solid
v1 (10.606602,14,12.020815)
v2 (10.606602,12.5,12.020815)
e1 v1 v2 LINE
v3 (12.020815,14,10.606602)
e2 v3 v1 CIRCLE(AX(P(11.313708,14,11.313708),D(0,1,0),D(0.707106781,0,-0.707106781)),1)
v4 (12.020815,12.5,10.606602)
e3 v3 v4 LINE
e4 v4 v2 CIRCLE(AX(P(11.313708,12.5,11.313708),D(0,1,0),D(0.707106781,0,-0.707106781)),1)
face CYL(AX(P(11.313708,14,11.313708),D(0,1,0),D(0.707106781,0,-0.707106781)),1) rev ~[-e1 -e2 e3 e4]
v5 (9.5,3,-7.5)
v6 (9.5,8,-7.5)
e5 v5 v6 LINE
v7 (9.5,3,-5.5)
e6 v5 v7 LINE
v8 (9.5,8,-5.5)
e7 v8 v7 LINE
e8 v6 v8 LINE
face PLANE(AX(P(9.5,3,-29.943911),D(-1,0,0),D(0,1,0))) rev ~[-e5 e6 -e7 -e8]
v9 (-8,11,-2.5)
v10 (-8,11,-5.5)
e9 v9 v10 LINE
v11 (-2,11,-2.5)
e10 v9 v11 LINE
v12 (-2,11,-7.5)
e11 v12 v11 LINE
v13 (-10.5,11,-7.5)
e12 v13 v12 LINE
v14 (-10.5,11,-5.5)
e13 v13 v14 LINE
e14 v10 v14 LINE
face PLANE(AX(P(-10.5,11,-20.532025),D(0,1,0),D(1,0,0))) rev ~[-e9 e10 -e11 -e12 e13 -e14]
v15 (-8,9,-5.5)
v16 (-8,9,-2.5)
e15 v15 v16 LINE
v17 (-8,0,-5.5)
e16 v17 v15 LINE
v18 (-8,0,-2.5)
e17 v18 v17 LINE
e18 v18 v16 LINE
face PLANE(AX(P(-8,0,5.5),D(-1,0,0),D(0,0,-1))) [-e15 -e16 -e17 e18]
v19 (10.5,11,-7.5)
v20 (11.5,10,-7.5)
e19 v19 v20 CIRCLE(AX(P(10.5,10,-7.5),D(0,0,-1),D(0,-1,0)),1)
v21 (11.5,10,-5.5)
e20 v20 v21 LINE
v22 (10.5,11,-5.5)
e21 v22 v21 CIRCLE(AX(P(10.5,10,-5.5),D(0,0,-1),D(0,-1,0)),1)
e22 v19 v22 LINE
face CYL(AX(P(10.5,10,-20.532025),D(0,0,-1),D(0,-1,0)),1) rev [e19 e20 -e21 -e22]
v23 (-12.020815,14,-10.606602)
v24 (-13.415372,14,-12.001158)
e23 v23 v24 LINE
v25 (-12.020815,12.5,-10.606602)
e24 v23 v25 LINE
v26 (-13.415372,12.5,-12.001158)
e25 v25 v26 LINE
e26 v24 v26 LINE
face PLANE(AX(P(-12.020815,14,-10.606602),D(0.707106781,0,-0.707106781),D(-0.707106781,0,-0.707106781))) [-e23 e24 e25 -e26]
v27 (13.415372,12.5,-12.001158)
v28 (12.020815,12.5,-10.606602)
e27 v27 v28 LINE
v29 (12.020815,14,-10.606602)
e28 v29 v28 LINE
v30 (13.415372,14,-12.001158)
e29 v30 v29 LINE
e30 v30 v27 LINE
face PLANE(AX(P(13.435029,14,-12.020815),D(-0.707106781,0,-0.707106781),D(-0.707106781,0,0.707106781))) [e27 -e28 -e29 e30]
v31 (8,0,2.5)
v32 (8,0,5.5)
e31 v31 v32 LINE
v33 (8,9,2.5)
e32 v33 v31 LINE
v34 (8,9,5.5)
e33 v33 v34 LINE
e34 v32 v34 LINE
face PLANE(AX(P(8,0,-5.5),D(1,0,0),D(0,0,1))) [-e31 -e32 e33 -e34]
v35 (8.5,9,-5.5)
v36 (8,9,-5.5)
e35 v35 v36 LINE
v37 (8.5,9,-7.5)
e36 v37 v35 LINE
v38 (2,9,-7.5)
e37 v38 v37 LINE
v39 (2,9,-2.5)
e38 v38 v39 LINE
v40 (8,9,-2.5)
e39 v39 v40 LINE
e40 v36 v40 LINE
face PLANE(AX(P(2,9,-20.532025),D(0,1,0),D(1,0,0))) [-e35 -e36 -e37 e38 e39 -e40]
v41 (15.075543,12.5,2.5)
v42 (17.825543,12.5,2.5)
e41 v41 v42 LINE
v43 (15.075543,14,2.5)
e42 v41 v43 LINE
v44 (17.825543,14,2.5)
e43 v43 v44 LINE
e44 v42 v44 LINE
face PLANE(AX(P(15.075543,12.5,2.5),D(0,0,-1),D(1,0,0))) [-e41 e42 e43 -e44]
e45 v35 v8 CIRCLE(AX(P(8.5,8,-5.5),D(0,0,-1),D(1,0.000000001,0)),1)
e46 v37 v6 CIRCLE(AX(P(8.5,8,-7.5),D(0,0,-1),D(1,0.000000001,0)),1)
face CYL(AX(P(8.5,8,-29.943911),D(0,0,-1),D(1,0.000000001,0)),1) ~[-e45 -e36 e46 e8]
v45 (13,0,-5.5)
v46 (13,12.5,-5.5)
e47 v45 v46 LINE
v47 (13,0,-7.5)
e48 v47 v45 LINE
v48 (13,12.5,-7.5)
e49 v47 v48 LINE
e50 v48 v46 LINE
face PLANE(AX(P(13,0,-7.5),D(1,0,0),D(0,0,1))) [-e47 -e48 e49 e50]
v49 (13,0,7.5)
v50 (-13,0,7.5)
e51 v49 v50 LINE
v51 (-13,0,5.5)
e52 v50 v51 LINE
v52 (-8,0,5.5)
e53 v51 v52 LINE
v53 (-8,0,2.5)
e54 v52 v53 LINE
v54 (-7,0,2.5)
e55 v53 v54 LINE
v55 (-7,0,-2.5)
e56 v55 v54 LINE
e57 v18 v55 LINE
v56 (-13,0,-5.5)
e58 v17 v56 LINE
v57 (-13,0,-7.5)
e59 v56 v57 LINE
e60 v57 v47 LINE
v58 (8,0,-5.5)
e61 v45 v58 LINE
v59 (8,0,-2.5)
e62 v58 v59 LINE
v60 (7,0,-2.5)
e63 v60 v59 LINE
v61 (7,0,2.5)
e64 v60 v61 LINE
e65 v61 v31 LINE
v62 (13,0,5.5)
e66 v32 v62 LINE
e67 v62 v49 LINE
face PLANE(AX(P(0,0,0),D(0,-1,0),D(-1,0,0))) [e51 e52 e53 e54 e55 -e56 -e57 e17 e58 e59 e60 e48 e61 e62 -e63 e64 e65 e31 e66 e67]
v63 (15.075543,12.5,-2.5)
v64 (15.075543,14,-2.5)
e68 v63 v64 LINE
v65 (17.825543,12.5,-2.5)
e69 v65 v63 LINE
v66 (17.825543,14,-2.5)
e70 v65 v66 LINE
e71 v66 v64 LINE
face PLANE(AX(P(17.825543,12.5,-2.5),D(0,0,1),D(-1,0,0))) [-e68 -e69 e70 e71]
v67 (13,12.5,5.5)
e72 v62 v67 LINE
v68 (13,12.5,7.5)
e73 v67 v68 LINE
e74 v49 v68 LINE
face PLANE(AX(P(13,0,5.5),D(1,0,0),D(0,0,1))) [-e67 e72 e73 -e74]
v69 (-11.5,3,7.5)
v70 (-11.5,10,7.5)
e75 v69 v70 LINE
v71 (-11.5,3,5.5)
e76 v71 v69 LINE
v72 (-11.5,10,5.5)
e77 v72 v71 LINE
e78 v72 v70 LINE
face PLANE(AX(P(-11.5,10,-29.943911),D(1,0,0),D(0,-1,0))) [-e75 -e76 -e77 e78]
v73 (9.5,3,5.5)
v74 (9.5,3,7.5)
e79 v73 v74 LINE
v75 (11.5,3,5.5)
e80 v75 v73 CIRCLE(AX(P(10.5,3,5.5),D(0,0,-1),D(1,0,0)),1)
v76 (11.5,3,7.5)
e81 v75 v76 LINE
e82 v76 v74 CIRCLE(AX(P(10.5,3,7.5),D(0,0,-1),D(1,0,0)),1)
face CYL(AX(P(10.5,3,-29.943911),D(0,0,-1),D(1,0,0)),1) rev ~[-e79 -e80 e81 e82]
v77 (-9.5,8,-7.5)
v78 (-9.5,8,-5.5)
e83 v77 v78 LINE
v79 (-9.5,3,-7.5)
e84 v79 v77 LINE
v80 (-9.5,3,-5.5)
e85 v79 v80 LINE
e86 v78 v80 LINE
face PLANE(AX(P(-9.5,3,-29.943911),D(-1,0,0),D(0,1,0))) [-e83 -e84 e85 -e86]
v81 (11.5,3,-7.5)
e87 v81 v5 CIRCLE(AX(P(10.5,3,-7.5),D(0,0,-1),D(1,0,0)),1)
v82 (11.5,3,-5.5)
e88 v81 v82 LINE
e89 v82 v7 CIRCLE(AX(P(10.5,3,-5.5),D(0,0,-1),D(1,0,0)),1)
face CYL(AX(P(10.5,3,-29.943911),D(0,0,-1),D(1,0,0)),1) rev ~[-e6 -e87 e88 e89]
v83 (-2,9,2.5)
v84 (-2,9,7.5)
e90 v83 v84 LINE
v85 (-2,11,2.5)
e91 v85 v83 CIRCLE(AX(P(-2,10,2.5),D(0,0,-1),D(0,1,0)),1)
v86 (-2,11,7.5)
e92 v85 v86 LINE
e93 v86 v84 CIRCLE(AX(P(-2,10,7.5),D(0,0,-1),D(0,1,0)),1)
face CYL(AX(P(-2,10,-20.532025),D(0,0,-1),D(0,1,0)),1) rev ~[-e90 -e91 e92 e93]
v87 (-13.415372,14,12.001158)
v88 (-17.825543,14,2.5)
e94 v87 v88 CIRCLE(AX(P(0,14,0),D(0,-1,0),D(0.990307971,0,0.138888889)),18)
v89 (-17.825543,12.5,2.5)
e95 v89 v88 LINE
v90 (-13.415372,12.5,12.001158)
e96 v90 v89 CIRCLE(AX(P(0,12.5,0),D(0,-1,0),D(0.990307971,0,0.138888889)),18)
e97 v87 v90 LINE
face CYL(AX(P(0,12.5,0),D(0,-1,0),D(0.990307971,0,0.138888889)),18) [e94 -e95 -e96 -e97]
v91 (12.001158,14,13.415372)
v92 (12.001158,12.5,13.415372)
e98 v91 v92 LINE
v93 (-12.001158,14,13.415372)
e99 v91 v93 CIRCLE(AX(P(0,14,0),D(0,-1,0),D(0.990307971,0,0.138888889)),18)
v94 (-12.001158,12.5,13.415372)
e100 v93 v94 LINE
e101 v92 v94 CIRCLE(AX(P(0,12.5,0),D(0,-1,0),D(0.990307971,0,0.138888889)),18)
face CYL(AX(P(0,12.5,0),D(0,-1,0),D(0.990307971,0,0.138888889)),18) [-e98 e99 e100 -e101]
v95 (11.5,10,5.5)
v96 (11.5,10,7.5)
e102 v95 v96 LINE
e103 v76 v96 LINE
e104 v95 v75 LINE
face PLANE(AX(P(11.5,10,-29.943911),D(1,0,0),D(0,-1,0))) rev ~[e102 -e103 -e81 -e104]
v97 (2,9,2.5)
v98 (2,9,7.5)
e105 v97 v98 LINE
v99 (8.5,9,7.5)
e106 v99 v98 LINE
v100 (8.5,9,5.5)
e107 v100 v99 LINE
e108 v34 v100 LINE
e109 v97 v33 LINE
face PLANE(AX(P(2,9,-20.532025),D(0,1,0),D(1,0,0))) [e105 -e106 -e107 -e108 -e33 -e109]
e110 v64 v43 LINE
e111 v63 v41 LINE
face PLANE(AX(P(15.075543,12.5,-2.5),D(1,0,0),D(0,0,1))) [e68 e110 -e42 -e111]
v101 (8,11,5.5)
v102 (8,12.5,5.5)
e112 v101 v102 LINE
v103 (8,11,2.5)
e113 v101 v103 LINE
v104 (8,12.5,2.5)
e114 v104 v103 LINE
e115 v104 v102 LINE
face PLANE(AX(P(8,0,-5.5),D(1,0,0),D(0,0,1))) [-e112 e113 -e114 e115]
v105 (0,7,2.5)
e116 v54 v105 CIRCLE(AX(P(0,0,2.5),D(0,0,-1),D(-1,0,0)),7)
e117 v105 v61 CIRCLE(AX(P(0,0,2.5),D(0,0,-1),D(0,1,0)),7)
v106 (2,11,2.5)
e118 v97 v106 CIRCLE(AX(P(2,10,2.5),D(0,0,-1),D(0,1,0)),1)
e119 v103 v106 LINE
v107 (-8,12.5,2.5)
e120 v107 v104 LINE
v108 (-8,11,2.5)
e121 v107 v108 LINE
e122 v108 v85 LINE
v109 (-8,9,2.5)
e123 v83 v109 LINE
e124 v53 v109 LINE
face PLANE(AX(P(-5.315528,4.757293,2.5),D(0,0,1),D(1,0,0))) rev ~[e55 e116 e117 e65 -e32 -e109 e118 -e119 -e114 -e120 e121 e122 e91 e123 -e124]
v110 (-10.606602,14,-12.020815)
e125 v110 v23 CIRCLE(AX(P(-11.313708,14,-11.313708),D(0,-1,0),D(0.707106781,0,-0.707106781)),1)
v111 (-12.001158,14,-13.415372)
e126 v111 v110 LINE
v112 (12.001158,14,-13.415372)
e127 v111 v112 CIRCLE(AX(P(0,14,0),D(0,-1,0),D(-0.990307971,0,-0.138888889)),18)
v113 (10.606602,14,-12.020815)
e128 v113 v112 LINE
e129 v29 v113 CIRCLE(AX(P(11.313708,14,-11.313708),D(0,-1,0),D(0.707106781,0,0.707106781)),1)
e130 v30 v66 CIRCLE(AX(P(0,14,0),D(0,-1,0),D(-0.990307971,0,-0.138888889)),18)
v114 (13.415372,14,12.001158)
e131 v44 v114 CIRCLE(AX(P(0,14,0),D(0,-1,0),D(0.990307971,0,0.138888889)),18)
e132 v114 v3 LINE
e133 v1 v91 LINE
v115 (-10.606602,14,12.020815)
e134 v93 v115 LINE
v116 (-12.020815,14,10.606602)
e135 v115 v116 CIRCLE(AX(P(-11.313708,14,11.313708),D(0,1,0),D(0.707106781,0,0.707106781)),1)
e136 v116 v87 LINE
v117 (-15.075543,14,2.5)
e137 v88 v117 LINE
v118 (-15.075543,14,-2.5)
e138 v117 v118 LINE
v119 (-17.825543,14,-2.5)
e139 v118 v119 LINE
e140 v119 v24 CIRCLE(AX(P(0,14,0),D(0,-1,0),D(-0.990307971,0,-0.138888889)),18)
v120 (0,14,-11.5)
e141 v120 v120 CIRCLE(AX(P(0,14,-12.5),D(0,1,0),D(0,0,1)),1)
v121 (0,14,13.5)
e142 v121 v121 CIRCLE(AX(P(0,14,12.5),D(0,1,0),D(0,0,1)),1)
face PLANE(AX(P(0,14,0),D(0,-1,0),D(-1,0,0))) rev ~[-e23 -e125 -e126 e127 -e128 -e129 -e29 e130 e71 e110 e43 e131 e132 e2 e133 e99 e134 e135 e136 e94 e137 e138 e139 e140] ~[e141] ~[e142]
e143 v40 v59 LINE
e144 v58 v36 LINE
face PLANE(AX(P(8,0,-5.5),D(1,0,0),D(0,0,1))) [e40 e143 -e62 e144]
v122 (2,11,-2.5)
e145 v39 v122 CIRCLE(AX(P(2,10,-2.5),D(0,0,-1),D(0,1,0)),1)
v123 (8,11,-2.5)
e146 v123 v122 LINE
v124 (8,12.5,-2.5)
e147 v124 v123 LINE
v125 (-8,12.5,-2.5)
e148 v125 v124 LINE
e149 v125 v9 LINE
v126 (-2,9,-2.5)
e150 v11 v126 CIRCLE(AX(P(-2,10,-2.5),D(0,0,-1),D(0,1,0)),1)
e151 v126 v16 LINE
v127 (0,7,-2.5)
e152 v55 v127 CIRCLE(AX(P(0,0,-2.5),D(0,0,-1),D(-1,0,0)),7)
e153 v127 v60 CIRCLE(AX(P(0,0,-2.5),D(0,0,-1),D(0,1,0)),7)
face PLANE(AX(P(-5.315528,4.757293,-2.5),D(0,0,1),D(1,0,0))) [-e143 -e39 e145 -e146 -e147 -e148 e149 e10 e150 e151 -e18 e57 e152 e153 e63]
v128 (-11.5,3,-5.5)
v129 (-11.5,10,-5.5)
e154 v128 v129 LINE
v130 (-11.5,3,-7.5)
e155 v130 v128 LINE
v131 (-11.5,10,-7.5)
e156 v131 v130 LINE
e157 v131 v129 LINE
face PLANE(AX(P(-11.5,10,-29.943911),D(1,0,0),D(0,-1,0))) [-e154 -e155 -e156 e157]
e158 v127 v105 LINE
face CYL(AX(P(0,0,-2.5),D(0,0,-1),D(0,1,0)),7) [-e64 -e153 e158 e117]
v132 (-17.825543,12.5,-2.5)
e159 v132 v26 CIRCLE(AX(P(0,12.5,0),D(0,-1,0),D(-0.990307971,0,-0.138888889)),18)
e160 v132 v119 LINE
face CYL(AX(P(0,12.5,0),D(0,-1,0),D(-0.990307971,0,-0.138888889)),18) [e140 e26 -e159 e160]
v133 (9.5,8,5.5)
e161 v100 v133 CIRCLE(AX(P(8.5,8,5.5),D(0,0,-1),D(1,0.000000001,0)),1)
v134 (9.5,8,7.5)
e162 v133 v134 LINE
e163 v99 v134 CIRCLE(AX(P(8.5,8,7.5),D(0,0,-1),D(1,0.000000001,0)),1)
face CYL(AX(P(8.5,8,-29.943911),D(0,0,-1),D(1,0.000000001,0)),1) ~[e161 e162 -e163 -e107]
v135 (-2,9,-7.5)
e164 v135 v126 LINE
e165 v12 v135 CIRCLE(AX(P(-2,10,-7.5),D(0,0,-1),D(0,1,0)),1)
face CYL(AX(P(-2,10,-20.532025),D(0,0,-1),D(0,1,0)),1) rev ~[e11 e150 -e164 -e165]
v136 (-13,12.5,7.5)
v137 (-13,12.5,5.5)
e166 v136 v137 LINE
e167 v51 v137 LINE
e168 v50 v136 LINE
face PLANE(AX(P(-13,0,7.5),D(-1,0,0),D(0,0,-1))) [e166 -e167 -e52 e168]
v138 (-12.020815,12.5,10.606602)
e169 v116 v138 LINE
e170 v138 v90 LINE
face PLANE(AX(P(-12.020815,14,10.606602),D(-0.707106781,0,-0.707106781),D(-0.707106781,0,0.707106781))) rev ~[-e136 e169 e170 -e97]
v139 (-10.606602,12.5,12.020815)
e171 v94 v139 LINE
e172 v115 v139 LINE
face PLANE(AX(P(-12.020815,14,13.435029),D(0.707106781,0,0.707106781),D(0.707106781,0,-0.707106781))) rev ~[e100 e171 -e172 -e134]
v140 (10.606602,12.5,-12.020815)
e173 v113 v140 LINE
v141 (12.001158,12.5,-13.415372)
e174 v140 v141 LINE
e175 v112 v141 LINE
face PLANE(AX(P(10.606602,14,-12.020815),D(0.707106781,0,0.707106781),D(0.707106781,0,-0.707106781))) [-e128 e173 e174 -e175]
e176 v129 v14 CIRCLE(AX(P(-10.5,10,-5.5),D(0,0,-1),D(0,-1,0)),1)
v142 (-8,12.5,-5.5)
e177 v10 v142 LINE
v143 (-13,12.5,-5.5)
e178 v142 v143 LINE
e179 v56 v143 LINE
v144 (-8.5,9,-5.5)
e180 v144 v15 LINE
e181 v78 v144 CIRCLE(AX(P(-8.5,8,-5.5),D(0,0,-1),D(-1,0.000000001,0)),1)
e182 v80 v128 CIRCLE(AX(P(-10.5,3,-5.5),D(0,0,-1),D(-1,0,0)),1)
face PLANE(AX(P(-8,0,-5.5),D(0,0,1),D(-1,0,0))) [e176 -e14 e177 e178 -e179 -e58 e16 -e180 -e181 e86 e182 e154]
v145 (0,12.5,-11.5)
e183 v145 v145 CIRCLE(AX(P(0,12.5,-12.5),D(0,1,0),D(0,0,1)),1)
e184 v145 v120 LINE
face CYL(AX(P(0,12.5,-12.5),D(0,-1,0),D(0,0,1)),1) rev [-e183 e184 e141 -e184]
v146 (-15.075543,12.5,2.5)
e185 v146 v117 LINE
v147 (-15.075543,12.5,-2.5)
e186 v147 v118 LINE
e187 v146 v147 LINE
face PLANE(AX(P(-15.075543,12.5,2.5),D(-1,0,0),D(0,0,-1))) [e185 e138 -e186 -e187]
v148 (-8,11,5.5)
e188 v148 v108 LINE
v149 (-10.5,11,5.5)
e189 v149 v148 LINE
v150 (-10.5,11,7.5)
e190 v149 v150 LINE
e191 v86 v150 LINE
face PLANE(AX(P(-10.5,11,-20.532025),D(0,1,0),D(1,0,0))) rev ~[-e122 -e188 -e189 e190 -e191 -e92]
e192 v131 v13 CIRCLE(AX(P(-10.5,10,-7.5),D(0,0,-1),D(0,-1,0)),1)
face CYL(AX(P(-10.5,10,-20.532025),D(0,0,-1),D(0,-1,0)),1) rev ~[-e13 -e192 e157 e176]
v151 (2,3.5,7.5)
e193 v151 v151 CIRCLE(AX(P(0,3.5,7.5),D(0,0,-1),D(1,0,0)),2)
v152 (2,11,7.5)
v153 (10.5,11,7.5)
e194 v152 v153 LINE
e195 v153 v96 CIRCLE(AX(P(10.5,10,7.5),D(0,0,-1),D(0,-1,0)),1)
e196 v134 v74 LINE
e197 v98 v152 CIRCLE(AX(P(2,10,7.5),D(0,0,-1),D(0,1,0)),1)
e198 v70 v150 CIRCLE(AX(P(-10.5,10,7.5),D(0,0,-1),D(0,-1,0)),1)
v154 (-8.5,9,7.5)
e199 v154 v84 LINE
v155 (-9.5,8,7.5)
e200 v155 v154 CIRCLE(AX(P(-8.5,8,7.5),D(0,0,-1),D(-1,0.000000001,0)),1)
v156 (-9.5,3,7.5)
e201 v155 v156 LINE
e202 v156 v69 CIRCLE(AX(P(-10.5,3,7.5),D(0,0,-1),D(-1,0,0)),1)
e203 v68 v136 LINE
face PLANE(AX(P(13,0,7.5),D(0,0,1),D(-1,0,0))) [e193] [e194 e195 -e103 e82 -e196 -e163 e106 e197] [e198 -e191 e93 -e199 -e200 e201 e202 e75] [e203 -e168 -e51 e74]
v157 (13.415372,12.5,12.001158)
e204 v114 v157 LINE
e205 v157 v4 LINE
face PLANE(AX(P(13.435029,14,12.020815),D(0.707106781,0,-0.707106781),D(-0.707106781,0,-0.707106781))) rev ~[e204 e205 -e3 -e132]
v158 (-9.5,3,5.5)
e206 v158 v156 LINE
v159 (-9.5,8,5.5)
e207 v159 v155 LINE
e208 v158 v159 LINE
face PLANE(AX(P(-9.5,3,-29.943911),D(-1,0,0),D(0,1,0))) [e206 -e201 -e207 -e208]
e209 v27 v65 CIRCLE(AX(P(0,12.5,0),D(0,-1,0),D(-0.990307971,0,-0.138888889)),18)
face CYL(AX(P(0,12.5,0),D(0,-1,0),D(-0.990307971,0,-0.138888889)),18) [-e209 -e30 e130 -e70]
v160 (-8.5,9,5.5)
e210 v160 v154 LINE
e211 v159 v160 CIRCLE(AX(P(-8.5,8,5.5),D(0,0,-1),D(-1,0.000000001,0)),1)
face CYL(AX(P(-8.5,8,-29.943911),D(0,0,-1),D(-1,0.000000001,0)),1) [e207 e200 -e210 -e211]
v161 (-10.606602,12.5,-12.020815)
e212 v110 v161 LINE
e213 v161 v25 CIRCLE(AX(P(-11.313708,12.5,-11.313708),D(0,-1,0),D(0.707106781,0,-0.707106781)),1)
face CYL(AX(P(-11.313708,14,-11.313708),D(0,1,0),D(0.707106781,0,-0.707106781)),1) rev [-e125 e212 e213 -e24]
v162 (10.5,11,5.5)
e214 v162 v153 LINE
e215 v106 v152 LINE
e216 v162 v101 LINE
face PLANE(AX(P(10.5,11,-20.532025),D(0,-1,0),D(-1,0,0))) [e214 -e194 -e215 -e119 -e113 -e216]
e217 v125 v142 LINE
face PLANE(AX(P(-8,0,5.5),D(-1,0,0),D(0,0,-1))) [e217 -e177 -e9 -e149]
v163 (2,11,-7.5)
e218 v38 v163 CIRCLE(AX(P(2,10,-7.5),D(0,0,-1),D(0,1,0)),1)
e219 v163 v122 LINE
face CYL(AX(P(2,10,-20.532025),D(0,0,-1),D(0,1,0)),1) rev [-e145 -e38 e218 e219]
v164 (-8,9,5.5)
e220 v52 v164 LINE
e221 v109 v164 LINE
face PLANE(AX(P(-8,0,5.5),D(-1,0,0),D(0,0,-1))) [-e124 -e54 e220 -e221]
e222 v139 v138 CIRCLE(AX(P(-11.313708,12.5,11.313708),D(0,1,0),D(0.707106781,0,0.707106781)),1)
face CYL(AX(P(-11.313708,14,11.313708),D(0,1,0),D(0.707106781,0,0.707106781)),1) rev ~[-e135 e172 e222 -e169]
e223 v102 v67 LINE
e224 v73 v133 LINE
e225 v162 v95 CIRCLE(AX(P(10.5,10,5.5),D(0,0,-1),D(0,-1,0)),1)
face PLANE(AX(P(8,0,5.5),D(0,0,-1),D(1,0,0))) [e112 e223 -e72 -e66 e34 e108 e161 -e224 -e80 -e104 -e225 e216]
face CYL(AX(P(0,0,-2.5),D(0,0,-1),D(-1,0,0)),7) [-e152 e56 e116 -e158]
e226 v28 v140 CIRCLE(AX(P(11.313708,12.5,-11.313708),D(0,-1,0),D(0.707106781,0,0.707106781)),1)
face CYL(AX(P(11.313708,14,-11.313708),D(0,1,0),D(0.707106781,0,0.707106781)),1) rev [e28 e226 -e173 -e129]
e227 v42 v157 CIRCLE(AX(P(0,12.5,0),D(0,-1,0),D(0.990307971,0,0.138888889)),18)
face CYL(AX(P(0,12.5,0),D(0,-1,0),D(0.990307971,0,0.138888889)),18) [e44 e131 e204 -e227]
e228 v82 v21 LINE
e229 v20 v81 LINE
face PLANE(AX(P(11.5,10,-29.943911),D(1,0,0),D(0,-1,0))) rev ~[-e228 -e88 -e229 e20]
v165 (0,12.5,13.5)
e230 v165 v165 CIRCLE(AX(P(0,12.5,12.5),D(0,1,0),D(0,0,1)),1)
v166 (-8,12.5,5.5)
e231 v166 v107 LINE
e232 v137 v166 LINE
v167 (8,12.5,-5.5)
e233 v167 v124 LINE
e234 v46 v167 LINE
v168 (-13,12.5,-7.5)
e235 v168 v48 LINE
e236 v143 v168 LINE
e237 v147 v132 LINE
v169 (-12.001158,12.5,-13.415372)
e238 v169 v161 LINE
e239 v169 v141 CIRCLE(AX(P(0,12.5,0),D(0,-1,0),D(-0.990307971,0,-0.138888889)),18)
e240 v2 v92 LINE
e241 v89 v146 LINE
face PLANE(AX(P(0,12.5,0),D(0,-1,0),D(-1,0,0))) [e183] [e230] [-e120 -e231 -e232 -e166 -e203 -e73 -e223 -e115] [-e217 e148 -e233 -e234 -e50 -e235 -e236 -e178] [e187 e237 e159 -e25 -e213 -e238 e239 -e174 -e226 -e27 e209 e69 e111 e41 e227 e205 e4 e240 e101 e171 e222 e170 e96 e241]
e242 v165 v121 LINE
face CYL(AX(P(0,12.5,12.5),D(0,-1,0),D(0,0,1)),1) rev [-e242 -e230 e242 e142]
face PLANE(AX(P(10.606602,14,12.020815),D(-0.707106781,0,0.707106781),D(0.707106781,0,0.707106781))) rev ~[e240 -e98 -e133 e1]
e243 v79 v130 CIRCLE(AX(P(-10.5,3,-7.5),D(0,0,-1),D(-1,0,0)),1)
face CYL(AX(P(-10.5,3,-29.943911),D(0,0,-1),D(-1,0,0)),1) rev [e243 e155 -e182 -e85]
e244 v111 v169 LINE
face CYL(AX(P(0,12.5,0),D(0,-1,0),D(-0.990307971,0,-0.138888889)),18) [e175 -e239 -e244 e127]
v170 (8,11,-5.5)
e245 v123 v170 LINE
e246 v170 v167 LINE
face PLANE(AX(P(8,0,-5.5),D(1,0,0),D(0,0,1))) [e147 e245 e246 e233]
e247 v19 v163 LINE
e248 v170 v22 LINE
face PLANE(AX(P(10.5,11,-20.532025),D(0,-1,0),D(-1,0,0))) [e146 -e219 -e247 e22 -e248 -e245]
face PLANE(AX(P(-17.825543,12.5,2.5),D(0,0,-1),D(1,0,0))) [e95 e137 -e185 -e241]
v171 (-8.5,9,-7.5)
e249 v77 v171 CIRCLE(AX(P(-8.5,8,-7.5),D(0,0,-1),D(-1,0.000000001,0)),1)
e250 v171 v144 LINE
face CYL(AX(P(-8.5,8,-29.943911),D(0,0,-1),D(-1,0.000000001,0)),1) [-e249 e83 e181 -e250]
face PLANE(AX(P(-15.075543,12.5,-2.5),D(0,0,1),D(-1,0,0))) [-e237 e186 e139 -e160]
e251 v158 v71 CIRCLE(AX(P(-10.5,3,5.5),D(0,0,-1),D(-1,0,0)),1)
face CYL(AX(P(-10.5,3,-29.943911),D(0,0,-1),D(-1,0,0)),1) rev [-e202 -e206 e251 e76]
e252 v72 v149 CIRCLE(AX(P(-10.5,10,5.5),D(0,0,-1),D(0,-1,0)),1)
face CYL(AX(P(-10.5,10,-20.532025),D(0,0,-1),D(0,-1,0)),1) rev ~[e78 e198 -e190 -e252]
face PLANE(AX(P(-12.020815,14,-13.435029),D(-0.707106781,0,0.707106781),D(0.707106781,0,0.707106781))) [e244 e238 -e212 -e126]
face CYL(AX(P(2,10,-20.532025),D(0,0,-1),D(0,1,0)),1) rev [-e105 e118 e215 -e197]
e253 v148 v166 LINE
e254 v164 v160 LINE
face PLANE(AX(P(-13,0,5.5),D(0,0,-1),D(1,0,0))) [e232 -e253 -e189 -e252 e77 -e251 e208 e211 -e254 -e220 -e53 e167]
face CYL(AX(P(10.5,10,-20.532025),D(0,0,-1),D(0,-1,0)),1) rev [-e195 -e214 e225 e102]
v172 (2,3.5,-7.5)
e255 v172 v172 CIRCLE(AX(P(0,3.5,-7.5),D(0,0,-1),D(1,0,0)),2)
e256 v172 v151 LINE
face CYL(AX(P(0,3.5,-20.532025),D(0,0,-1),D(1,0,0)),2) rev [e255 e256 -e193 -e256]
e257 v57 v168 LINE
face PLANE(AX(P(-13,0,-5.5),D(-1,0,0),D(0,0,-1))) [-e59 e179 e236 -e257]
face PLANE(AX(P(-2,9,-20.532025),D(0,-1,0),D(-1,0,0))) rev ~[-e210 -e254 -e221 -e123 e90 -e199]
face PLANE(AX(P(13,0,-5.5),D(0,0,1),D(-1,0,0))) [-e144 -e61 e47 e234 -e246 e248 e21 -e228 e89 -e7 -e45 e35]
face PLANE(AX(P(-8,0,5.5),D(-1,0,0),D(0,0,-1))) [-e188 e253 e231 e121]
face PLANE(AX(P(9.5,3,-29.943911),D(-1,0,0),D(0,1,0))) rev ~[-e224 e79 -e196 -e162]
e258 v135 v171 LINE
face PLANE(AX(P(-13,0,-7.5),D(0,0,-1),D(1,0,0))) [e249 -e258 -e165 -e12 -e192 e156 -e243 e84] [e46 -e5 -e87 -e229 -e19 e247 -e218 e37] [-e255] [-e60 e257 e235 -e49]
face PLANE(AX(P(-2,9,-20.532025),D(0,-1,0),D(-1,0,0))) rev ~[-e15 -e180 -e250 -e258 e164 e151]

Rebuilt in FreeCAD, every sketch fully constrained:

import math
import FreeCAD as App
import Part
import Sketcher

V = App.Vector

doc = App.newDocument("Part")
body = doc.addObject("PartDesign::Body", "Body")

# Sketch on XZ plane
sketch1 = doc.addObject("Sketcher::SketchObject", "Sketch")
body.addObject(sketch1)
sketch1.AttachmentSupport = (doc.XZ_Plane, [""])
sketch1.MapMode = "FlatFace"
sketch1.addGeometry([
    Part.LineSegment(V(8, -5.5, 0), V(13, -5.5, 0)),  # 0
    Part.LineSegment(V(13, -5.5, 0), V(13, -7.5, 0)),  # 1
    Part.LineSegment(V(13, -7.5, 0), V(-13, -7.5, 0)),  # 2
    Part.LineSegment(V(-13, -7.5, 0), V(-13, -5.5, 0)),  # 3
    Part.LineSegment(V(-13, -5.5, 0), V(-8, -5.5, 0)),  # 4
    Part.LineSegment(V(-8, -5.5, 0), V(-8, 5.5, 0)),  # 5
    Part.LineSegment(V(-8, 5.5, 0), V(-13, 5.5, 0)),  # 6
    Part.LineSegment(V(-13, 5.5, 0), V(-13, 7.5, 0)),  # 7
    Part.LineSegment(V(-13, 7.5, 0), V(13, 7.5, 0)),  # 8
    Part.LineSegment(V(13, 7.5, 0), V(13, 5.5, 0)),  # 9
    Part.LineSegment(V(13, 5.5, 0), V(8, 5.5, 0)),  # 10
    Part.LineSegment(V(8, 5.5, 0), V(8, -5.5, 0)),  # 11
], False)
sketch1.addConstraint([
    Sketcher.Constraint("Coincident", 0, 2, 1, 1),
    Sketcher.Constraint("Coincident", 1, 2, 2, 1),
    Sketcher.Constraint("Coincident", 2, 2, 3, 1),
    Sketcher.Constraint("Coincident", 3, 2, 4, 1),
    Sketcher.Constraint("Coincident", 4, 2, 5, 1),
    Sketcher.Constraint("Coincident", 5, 2, 6, 1),
    Sketcher.Constraint("Coincident", 6, 2, 7, 1),
    Sketcher.Constraint("Coincident", 7, 2, 8, 1),
    Sketcher.Constraint("Coincident", 8, 2, 9, 1),
    Sketcher.Constraint("Coincident", 9, 2, 10, 1),
    Sketcher.Constraint("Coincident", 10, 2, 11, 1),
    Sketcher.Constraint("Coincident", 11, 2, 0, 1),
    Sketcher.Constraint("Horizontal", 0),
    Sketcher.Constraint("Vertical", 1),
    Sketcher.Constraint("Horizontal", 2),
    Sketcher.Constraint("Vertical", 3),
    Sketcher.Constraint("Horizontal", 4),
    Sketcher.Constraint("Vertical", 5),
    Sketcher.Constraint("Horizontal", 6),
    Sketcher.Constraint("Vertical", 7),
    Sketcher.Constraint("Horizontal", 8),
    Sketcher.Constraint("Vertical", 9),
    Sketcher.Constraint("Horizontal", 10),
    Sketcher.Constraint("Vertical", 11),
    Sketcher.Constraint("Symmetric", 0, 2, 6, 2, -1, 1),
    Sketcher.Constraint("Symmetric", 2, 2, 8, 2, -1, 1),
    Sketcher.Constraint("Symmetric", 4, 2, 10, 2, -1, 1),
    Sketcher.Constraint("Symmetric", 0, 2, 3, 2, -2),
    Sketcher.Constraint("DistanceX", 0, 1, 0, 2, 5.0),
    Sketcher.Constraint("DistanceX", 2, 2, 2, 1, 26.0),
    Sketcher.Constraint("DistanceY", 1, 2, 1, 1, 2.0),
    Sketcher.Constraint("DistanceY", 5, 1, 5, 2, 11.0),
])
pad1 = doc.addObject("PartDesign::Pad", "Pad")
body.addObject(pad1)
pad1.Profile = sketch1
pad1.Length = 12.5
pad1.Reversed = True

# Sketch on XY plane
sketch2 = doc.addObject("Sketcher::SketchObject", "Sketch001")
body.addObject(sketch2)
sketch2.AttachmentSupport = (doc.XY_Plane, [""])
sketch2.MapMode = "FlatFace"
sketch2.addGeometry(Part.Circle(V(0, 3.5, 0), V(0, 0, 1), 2), False)
sketch2.addConstraint([
    Sketcher.Constraint("PointOnObject", 0, 3, -2),
    Sketcher.Constraint("Diameter", 0, 4.0),
    Sketcher.Constraint("DistanceY", -1, 1, 0, 3, 3.5),
])
pocket1 = doc.addObject("PartDesign::Pocket", "Pocket")
body.addObject(pocket1)
pocket1.Profile = sketch2
pocket1.Type = "ThroughAll"
pocket1.Midplane = True

# Sketch on XY plane
sketch3 = doc.addObject("Sketcher::SketchObject", "Sketch002")
body.addObject(sketch3)
sketch3.AttachmentSupport = (doc.XY_Plane, [""])
sketch3.MapMode = "FlatFace"
sketch3.addGeometry([
    Part.LineSegment(V(-2, 11, 0), V(-10.5, 11, 0)),  # 0
    Part.ArcOfCircle(Part.Circle(V(-10.5, 10, 0), V(0, 0, 1), 1), math.radians(90), math.radians(270)),  # 1
    Part.LineSegment(V(-10.5, 9, 0), V(-2, 9, 0)),  # 2
    Part.ArcOfCircle(Part.Circle(V(-2, 10, 0), V(0, 0, 1), 1), math.radians(-90), math.radians(90)),  # 3
    Part.LineSegment(V(2, 9, 0), V(10.5, 9, 0)),  # 4
    Part.ArcOfCircle(Part.Circle(V(10.5, 10, 0), V(0, 0, 1), 1), math.radians(-90), math.radians(90)),  # 5
    Part.LineSegment(V(10.5, 11, 0), V(2, 11, 0)),  # 6
    Part.ArcOfCircle(Part.Circle(V(2, 10, 0), V(0, 0, 1), 1), math.radians(90), math.radians(270)),  # 7
], False)
sketch3.addConstraint([
    Sketcher.Constraint("Tangent", 0, 2, 1, 1),
    Sketcher.Constraint("Tangent", 1, 2, 2, 1),
    Sketcher.Constraint("Tangent", 2, 2, 3, 1),
    Sketcher.Constraint("Tangent", 3, 2, 0, 1),
    Sketcher.Constraint("Tangent", 4, 2, 5, 1),
    Sketcher.Constraint("Tangent", 5, 2, 6, 1),
    Sketcher.Constraint("Tangent", 6, 2, 7, 1),
    Sketcher.Constraint("Tangent", 7, 2, 4, 1),
    Sketcher.Constraint("Horizontal", 0),
    Sketcher.Constraint("Horizontal", 2),
    Sketcher.Constraint("Horizontal", 4),
    Sketcher.Constraint("Horizontal", 6),
    Sketcher.Constraint("Equal", 3, 5),
    Sketcher.Constraint("Symmetric", 1, 3, 5, 3, -2),
    Sketcher.Constraint("Equal", 2, 4),
    Sketcher.Constraint("Radius", 1, 1.0),
    Sketcher.Constraint("DistanceX", 0, 2, 0, 1, 8.5),
    Sketcher.Constraint("DistanceY", -1, 1, 1, 3, 10.0),
    Sketcher.Constraint("DistanceX", 3, 3, -1, 1, 2.0),
])
pocket2 = doc.addObject("PartDesign::Pocket", "Pocket001")
body.addObject(pocket2)
pocket2.Profile = sketch3
pocket2.Type = "ThroughAll"
pocket2.Midplane = True

# Sketch on XZ plane
sketch4 = doc.addObject("Sketcher::SketchObject", "Sketch003")
body.addObject(sketch4)
sketch4.AttachmentSupport = (doc.XZ_Plane, [""])
sketch4.MapMode = "FlatFace"
sketch4.AttachmentOffset = App.Placement(V(0, 0, -12.5), App.Rotation())
sketch4.addGeometry([
    Part.LineSegment(V(-8, -2.5, 0), V(-8, 2.5, 0)),
    Part.LineSegment(V(-8, 2.5, 0), V(8, 2.5, 0)),
    Part.LineSegment(V(8, 2.5, 0), V(8, -2.5, 0)),
    Part.LineSegment(V(8, -2.5, 0), V(-8, -2.5, 0)),
], False)
sketch4.addConstraint([
    Sketcher.Constraint("Coincident", 0, 2, 1, 1),
    Sketcher.Constraint("Coincident", 1, 2, 2, 1),
    Sketcher.Constraint("Coincident", 2, 2, 3, 1),
    Sketcher.Constraint("Coincident", 3, 2, 0, 1),
    Sketcher.Constraint("Vertical", 0),
    Sketcher.Constraint("Horizontal", 1),
    Sketcher.Constraint("Vertical", 2),
    Sketcher.Constraint("Horizontal", 3),
    Sketcher.Constraint("Symmetric", 0, 2, 2, 2, -1, 1),
    Sketcher.Constraint("DistanceX", 1, 1, 1, 2, 16.0),
    Sketcher.Constraint("DistanceY", 0, 1, 0, 2, 5.0),
])
pocket3 = doc.addObject("PartDesign::Pocket", "Pocket002")
body.addObject(pocket3)
pocket3.Profile = sketch4
pocket3.Length = 5.5
pocket3.Reversed = True

# Sketch on XY plane
sketch5 = doc.addObject("Sketcher::SketchObject", "Sketch004")
body.addObject(sketch5)
sketch5.AttachmentSupport = (doc.XY_Plane, [""])
sketch5.MapMode = "FlatFace"
sketch5.addGeometry([
    Part.LineSegment(V(8, 7, 0), V(0, 7, 0)),  # 0
    Part.ArcOfCircle(Part.Circle(V(0, 0, 0), V(0, 0, 1), 7), math.radians(0), math.radians(90)),  # 1
    Part.LineSegment(V(7, 0, 0), V(8, 0, 0)),  # 2
    Part.LineSegment(V(8, 0, 0), V(8, 7, 0)),  # 3
    Part.LineSegment(V(-8, 7, 0), V(-8, 0, 0)),  # 4
    Part.LineSegment(V(-8, 0, 0), V(-7, 0, 0)),  # 5
    Part.ArcOfCircle(Part.Circle(V(0, 0, 0), V(0, 0, 1), 7), math.radians(90), math.radians(180)),  # 6
    Part.LineSegment(V(0, 7, 0), V(-8, 7, 0)),  # 7
], False)
sketch5.addConstraint([
    Sketcher.Constraint("Tangent", 0, 2, 1, 2),
    Sketcher.Constraint("Coincident", 1, 1, 2, 1),
    Sketcher.Constraint("Coincident", 2, 2, 3, 1),
    Sketcher.Constraint("Coincident", 3, 2, 0, 1),
    Sketcher.Constraint("Coincident", 4, 2, 5, 1),
    Sketcher.Constraint("Coincident", 5, 2, 6, 2),
    Sketcher.Constraint("Tangent", 6, 1, 7, 1),
    Sketcher.Constraint("Coincident", 7, 2, 4, 1),
    Sketcher.Constraint("Horizontal", 0),
    Sketcher.Constraint("Horizontal", 2),
    Sketcher.Constraint("Vertical", 3),
    Sketcher.Constraint("Vertical", 4),
    Sketcher.Constraint("Horizontal", 5),
    Sketcher.Constraint("Horizontal", 7),
    Sketcher.Constraint("Coincident", 1, 3, -1, 1),
    Sketcher.Constraint("Coincident", 6, 3, -1, 1),
    Sketcher.Constraint("Equal", 1, 6),
    Sketcher.Constraint("Symmetric", 2, 2, 4, 2, -1, 1),
    Sketcher.Constraint("PointOnObject", 1, 1, -1),
    Sketcher.Constraint("Radius", 1, 7.0),
    Sketcher.Constraint("DistanceX", 0, 2, 0, 1, 8.0),
])
pocket4 = doc.addObject("PartDesign::Pocket", "Pocket003")
body.addObject(pocket4)
pocket4.Profile = sketch5
pocket4.Type = "TwoLengths"
pocket4.Length = 2.5
pocket4.Length2 = 2.5
pocket4.Reversed = True

# Sketch on XZ plane
sketch6 = doc.addObject("Sketcher::SketchObject", "Sketch005")
body.addObject(sketch6)
sketch6.AttachmentSupport = (doc.XZ_Plane, [""])
sketch6.MapMode = "FlatFace"
sketch6.AttachmentOffset = App.Placement(V(0, 0, -12.5), App.Rotation())
sketch6.addGeometry([
    Part.LineSegment(V(15.075543, -2.5, 0), V(17.825543, -2.5, 0)),  # 0
    Part.ArcOfCircle(Part.Circle(V(0, 0, 0), V(0, 0, 1), 18), math.radians(-172.016444), math.radians(-7.983556)),  # 1
    Part.LineSegment(V(-17.825543, -2.5, 0), V(-15.075543, -2.5, 0)),  # 2
    Part.LineSegment(V(-15.075543, -2.5, 0), V(-15.075543, 2.5, 0)),  # 3
    Part.LineSegment(V(-15.075543, 2.5, 0), V(-17.825543, 2.5, 0)),  # 4
    Part.ArcOfCircle(Part.Circle(V(0, 0, 0), V(0, 0, 1), 18), math.radians(7.983556), math.radians(172.016444)),  # 5
    Part.LineSegment(V(17.825543, 2.5, 0), V(15.075543, 2.5, 0)),  # 6
    Part.LineSegment(V(15.075543, 2.5, 0), V(15.075543, -2.5, 0)),  # 7
], False)
sketch6.addConstraint([
    Sketcher.Constraint("Coincident", 0, 2, 1, 2),
    Sketcher.Constraint("Coincident", 1, 1, 2, 1),
    Sketcher.Constraint("Coincident", 2, 2, 3, 1),
    Sketcher.Constraint("Coincident", 3, 2, 4, 1),
    Sketcher.Constraint("Coincident", 4, 2, 5, 2),
    Sketcher.Constraint("Coincident", 5, 1, 6, 1),
    Sketcher.Constraint("Coincident", 6, 2, 7, 1),
    Sketcher.Constraint("Coincident", 7, 2, 0, 1),
    Sketcher.Constraint("Horizontal", 0),
    Sketcher.Constraint("Horizontal", 2),
    Sketcher.Constraint("Vertical", 3),
    Sketcher.Constraint("Horizontal", 4),
    Sketcher.Constraint("Horizontal", 6),
    Sketcher.Constraint("Vertical", 7),
    Sketcher.Constraint("Coincident", 1, 3, -1, 1),
    Sketcher.Constraint("Coincident", 5, 3, -1, 1),
    Sketcher.Constraint("Equal", 1, 5),
    Sketcher.Constraint("Symmetric", 2, 2, 6, 2, -1, 1),
    Sketcher.Constraint("Horizontal", 0, 2, 1, 1),
    Sketcher.Constraint("Horizontal", 4, 2, 5, 1),
    Sketcher.Constraint("Radius", 1, 18.0),
    Sketcher.Constraint("DistanceY", 3, 1, 3, 2, 5.0),
    Sketcher.Constraint("DistanceX", 0, 1, 0, 2, 2.75),
])
pad2 = doc.addObject("PartDesign::Pad", "Pad001")
body.addObject(pad2)
pad2.Profile = sketch6
pad2.Length = 1.5
pad2.Reversed = True

# Sketch on XZ plane
sketch7 = doc.addObject("Sketcher::SketchObject", "Sketch006")
body.addObject(sketch7)
sketch7.AttachmentSupport = (doc.XZ_Plane, [""])
sketch7.MapMode = "FlatFace"
sketch7.AttachmentOffset = App.Placement(V(0, 0, -12.5), App.Rotation())
sketch7.addGeometry([
    Part.Circle(V(0, -12.5, 0), V(0, 0, 1), 1),
    Part.Circle(V(0, 12.5, 0), V(0, 0, 1), 1),
], False)
sketch7.addConstraint([
    Sketcher.Constraint("Equal", 0, 1),
    Sketcher.Constraint("Symmetric", 0, 3, 1, 3, -1, 1),
    Sketcher.Constraint("PointOnObject", 0, 3, -2),
    Sketcher.Constraint("Diameter", 0, 2.0),
    Sketcher.Constraint("DistanceY", 0, 3, 1, 3, 25.0),
])
pocket5 = doc.addObject("PartDesign::Pocket", "Pocket004")
body.addObject(pocket5)
pocket5.Profile = sketch7
pocket5.Length = 1.5

# Sketch on XZ plane
sketch8 = doc.addObject("Sketcher::SketchObject", "Sketch007")
body.addObject(sketch8)
sketch8.AttachmentSupport = (doc.XZ_Plane, [""])
sketch8.MapMode = "FlatFace"
sketch8.AttachmentOffset = App.Placement(V(0, 0, -14), App.Rotation())
sketch8.addGeometry([
    Part.LineSegment(V(-13.435029, -12.020815, 0), V(-12.020815, -10.606602, 0)),  # 0
    Part.ArcOfCircle(Part.Circle(V(-11.313708, -11.313708, 0), V(0, 0, 1), 1), math.radians(-45), math.radians(135)),  # 1
    Part.LineSegment(V(-10.606602, -12.020815, 0), V(-12.020815, -13.435029, 0)),  # 2
    Part.ArcOfCircle(Part.Circle(V(-12.727922, -12.727922, 0), V(0, 0, 1), 1), math.radians(135), math.radians(315)),  # 3
    Part.LineSegment(V(10.606602, 12.020815, 0), V(12.020815, 13.435029, 0)),  # 4
    Part.ArcOfCircle(Part.Circle(V(12.727922, 12.727922, 0), V(0, 0, 1), 1), math.radians(-45), math.radians(135)),  # 5
    Part.LineSegment(V(13.435029, 12.020815, 0), V(12.020815, 10.606602, 0)),  # 6
    Part.ArcOfCircle(Part.Circle(V(11.313708, 11.313708, 0), V(0, 0, 1), 1), math.radians(135), math.radians(315)),  # 7
    Part.LineSegment(V(-12.020815, 10.606602, 0), V(-13.435029, 12.020815, 0)),  # 8
    Part.ArcOfCircle(Part.Circle(V(-12.727922, 12.727922, 0), V(0, 0, 1), 1), math.radians(45), math.radians(225)),  # 9
    Part.LineSegment(V(-12.020815, 13.435029, 0), V(-10.606602, 12.020815, 0)),  # 10
    Part.ArcOfCircle(Part.Circle(V(-11.313708, 11.313708, 0), V(0, 0, 1), 1), math.radians(-135), math.radians(45)),  # 11
    Part.LineSegment(V(12.020815, -13.435029, 0), V(10.606602, -12.020815, 0)),  # 12
    Part.ArcOfCircle(Part.Circle(V(11.313708, -11.313708, 0), V(0, 0, 1), 1), math.radians(45), math.radians(225)),  # 13
    Part.LineSegment(V(12.020815, -10.606602, 0), V(13.435029, -12.020815, 0)),  # 14
    Part.ArcOfCircle(Part.Circle(V(12.727922, -12.727922, 0), V(0, 0, 1), 1), math.radians(-135), math.radians(45)),  # 15
], False)
sketch8.addConstraint([
    Sketcher.Constraint("Tangent", 0, 2, 1, 2),
    Sketcher.Constraint("Tangent", 1, 1, 2, 1),
    Sketcher.Constraint("Tangent", 2, 2, 3, 2),
    Sketcher.Constraint("Tangent", 3, 1, 0, 1),
    Sketcher.Constraint("Tangent", 4, 2, 5, 2),
    Sketcher.Constraint("Tangent", 5, 1, 6, 1),
    Sketcher.Constraint("Tangent", 6, 2, 7, 2),
    Sketcher.Constraint("Tangent", 7, 1, 4, 1),
    Sketcher.Constraint("Tangent", 8, 2, 9, 2),
    Sketcher.Constraint("Tangent", 9, 1, 10, 1),
    Sketcher.Constraint("Tangent", 10, 2, 11, 2),
    Sketcher.Constraint("Tangent", 11, 1, 8, 1),
    Sketcher.Constraint("Tangent", 12, 2, 13, 2),
    Sketcher.Constraint("Tangent", 13, 1, 14, 1),
    Sketcher.Constraint("Tangent", 14, 2, 15, 2),
    Sketcher.Constraint("Tangent", 15, 1, 12, 1),
    Sketcher.Constraint("Equal", 1, 3),
    Sketcher.Constraint("Equal", 3, 5),
    Sketcher.Constraint("Equal", 5, 7),
    Sketcher.Constraint("Equal", 7, 9),
    Sketcher.Constraint("Equal", 9, 11),
    Sketcher.Constraint("Equal", 11, 13),
    Sketcher.Constraint("Equal", 13, 15),
    Sketcher.Constraint("Symmetric", 3, 3, 5, 3, -1, 1),
    Sketcher.Constraint("Symmetric", 1, 3, 7, 3, -1, 1),
    Sketcher.Constraint("Symmetric", 11, 3, 13, 3, -1, 1),
    Sketcher.Constraint("Symmetric", 9, 3, 15, 3, -1, 1),
    Sketcher.Constraint("Symmetric", 5, 3, 9, 3, -2),
    Sketcher.Constraint("Symmetric", 7, 3, 11, 3, -2),
    Sketcher.Constraint("Perpendicular", 6, 8),
    Sketcher.Constraint("Horizontal", 1, 1, 3, 1),
    Sketcher.Constraint("Radius", 1, 1.0),
    Sketcher.Constraint("DistanceY", 0, 2, -1, 1, 10.606602),
    Sketcher.Constraint("DistanceX", 1, 1, -1, 1, 10.606602),
])
pocket6 = doc.addObject("PartDesign::Pocket", "Pocket005")
body.addObject(pocket6)
pocket6.Profile = sketch8
pocket6.Length = 1.5
pocket6.Reversed = True

# Sketch on XY plane
sketch9 = doc.addObject("Sketcher::SketchObject", "Sketch008")
body.addObject(sketch9)
sketch9.AttachmentSupport = (doc.XY_Plane, [""])
sketch9.MapMode = "FlatFace"
sketch9.addGeometry([
    Part.LineSegment(V(-11.5, 10, 0), V(-11.5, 3, 0)),  # 0
    Part.ArcOfCircle(Part.Circle(V(-10.5, 3, 0), V(0, 0, 1), 1), math.radians(180), math.radians(360)),  # 1
    Part.LineSegment(V(-9.5, 3, 0), V(-9.5, 10, 0)),  # 2
    Part.ArcOfCircle(Part.Circle(V(-10.5, 10, 0), V(0, 0, 1), 1), math.radians(0), math.radians(180)),  # 3
    Part.LineSegment(V(11.5, 3, 0), V(11.5, 10, 0)),  # 4
    Part.ArcOfCircle(Part.Circle(V(10.5, 10, 0), V(0, 0, 1), 1), math.radians(0), math.radians(180)),  # 5
    Part.LineSegment(V(9.5, 10, 0), V(9.5, 3, 0)),  # 6
    Part.ArcOfCircle(Part.Circle(V(10.5, 3, 0), V(0, 0, 1), 1), math.radians(180), math.radians(360)),  # 7
], False)
sketch9.addConstraint([
    Sketcher.Constraint("Tangent", 0, 2, 1, 1),
    Sketcher.Constraint("Tangent", 1, 2, 2, 1),
    Sketcher.Constraint("Tangent", 2, 2, 3, 1),
    Sketcher.Constraint("Tangent", 3, 2, 0, 1),
    Sketcher.Constraint("Tangent", 4, 2, 5, 1),
    Sketcher.Constraint("Tangent", 5, 2, 6, 1),
    Sketcher.Constraint("Tangent", 6, 2, 7, 1),
    Sketcher.Constraint("Tangent", 7, 2, 4, 1),
    Sketcher.Constraint("Vertical", 0),
    Sketcher.Constraint("Vertical", 2),
    Sketcher.Constraint("Vertical", 4),
    Sketcher.Constraint("Vertical", 6),
    Sketcher.Constraint("Equal", 3, 5),
    Sketcher.Constraint("Symmetric", 3, 3, 5, 3, -2),
    Sketcher.Constraint("Horizontal", 1, 3, 7, 3),
    Sketcher.Constraint("Radius", 1, 1.0),
    Sketcher.Constraint("DistanceY", 0, 2, 0, 1, 7.0),
    Sketcher.Constraint("DistanceY", -1, 1, 1, 3, 3.0),
    Sketcher.Constraint("DistanceX", 3, 3, 5, 3, 21.0),
])
pocket7 = doc.addObject("PartDesign::Pocket", "Pocket006")
body.addObject(pocket7)
pocket7.Profile = sketch9
pocket7.Type = "ThroughAll"
pocket7.Midplane = True

# Sketch on XY plane
sketch10 = doc.addObject("Sketcher::SketchObject", "Sketch009")
body.addObject(sketch10)
sketch10.AttachmentSupport = (doc.XY_Plane, [""])
sketch10.MapMode = "FlatFace"
sketch10.addGeometry([
    Part.LineSegment(V(9.5, 9, 0), V(8.5, 9, 0)),  # 0
    Part.ArcOfCircle(Part.Circle(V(8.5, 8, 0), V(0, 0, 1), 1), math.radians(0), math.radians(90)),  # 1
    Part.LineSegment(V(9.5, 8, 0), V(9.5, 9, 0)),  # 2
    Part.LineSegment(V(-9.5, 9, 0), V(-9.5, 8, 0)),  # 3
    Part.ArcOfCircle(Part.Circle(V(-8.5, 8, 0), V(0, 0, 1), 1), math.radians(90), math.radians(180)),  # 4
    Part.LineSegment(V(-8.5, 9, 0), V(-9.5, 9, 0)),  # 5
], False)
sketch10.addConstraint([
    Sketcher.Constraint("Tangent", 0, 2, 1, 2),
    Sketcher.Constraint("Tangent", 1, 1, 2, 1),
    Sketcher.Constraint("Coincident", 2, 2, 0, 1),
    Sketcher.Constraint("Tangent", 3, 2, 4, 2),
    Sketcher.Constraint("Tangent", 4, 1, 5, 1),
    Sketcher.Constraint("Coincident", 5, 2, 3, 1),
    Sketcher.Constraint("Horizontal", 0),
    Sketcher.Constraint("Vertical", 2),
    Sketcher.Constraint("Vertical", 3),
    Sketcher.Constraint("Horizontal", 5),
    Sketcher.Constraint("Equal", 1, 4),
    Sketcher.Constraint("Symmetric", 1, 3, 4, 3, -2),
    Sketcher.Constraint("Radius", 1, 1.0),
    Sketcher.Constraint("DistanceY", -1, 1, 1, 3, 8.0),
    Sketcher.Constraint("DistanceX", 4, 3, 1, 3, 17.0),
])
pocket8 = doc.addObject("PartDesign::Pocket", "Pocket007")
body.addObject(pocket8)
pocket8.Profile = sketch10
pocket8.Type = "ThroughAll"
pocket8.Midplane = True

doc.recompute()
